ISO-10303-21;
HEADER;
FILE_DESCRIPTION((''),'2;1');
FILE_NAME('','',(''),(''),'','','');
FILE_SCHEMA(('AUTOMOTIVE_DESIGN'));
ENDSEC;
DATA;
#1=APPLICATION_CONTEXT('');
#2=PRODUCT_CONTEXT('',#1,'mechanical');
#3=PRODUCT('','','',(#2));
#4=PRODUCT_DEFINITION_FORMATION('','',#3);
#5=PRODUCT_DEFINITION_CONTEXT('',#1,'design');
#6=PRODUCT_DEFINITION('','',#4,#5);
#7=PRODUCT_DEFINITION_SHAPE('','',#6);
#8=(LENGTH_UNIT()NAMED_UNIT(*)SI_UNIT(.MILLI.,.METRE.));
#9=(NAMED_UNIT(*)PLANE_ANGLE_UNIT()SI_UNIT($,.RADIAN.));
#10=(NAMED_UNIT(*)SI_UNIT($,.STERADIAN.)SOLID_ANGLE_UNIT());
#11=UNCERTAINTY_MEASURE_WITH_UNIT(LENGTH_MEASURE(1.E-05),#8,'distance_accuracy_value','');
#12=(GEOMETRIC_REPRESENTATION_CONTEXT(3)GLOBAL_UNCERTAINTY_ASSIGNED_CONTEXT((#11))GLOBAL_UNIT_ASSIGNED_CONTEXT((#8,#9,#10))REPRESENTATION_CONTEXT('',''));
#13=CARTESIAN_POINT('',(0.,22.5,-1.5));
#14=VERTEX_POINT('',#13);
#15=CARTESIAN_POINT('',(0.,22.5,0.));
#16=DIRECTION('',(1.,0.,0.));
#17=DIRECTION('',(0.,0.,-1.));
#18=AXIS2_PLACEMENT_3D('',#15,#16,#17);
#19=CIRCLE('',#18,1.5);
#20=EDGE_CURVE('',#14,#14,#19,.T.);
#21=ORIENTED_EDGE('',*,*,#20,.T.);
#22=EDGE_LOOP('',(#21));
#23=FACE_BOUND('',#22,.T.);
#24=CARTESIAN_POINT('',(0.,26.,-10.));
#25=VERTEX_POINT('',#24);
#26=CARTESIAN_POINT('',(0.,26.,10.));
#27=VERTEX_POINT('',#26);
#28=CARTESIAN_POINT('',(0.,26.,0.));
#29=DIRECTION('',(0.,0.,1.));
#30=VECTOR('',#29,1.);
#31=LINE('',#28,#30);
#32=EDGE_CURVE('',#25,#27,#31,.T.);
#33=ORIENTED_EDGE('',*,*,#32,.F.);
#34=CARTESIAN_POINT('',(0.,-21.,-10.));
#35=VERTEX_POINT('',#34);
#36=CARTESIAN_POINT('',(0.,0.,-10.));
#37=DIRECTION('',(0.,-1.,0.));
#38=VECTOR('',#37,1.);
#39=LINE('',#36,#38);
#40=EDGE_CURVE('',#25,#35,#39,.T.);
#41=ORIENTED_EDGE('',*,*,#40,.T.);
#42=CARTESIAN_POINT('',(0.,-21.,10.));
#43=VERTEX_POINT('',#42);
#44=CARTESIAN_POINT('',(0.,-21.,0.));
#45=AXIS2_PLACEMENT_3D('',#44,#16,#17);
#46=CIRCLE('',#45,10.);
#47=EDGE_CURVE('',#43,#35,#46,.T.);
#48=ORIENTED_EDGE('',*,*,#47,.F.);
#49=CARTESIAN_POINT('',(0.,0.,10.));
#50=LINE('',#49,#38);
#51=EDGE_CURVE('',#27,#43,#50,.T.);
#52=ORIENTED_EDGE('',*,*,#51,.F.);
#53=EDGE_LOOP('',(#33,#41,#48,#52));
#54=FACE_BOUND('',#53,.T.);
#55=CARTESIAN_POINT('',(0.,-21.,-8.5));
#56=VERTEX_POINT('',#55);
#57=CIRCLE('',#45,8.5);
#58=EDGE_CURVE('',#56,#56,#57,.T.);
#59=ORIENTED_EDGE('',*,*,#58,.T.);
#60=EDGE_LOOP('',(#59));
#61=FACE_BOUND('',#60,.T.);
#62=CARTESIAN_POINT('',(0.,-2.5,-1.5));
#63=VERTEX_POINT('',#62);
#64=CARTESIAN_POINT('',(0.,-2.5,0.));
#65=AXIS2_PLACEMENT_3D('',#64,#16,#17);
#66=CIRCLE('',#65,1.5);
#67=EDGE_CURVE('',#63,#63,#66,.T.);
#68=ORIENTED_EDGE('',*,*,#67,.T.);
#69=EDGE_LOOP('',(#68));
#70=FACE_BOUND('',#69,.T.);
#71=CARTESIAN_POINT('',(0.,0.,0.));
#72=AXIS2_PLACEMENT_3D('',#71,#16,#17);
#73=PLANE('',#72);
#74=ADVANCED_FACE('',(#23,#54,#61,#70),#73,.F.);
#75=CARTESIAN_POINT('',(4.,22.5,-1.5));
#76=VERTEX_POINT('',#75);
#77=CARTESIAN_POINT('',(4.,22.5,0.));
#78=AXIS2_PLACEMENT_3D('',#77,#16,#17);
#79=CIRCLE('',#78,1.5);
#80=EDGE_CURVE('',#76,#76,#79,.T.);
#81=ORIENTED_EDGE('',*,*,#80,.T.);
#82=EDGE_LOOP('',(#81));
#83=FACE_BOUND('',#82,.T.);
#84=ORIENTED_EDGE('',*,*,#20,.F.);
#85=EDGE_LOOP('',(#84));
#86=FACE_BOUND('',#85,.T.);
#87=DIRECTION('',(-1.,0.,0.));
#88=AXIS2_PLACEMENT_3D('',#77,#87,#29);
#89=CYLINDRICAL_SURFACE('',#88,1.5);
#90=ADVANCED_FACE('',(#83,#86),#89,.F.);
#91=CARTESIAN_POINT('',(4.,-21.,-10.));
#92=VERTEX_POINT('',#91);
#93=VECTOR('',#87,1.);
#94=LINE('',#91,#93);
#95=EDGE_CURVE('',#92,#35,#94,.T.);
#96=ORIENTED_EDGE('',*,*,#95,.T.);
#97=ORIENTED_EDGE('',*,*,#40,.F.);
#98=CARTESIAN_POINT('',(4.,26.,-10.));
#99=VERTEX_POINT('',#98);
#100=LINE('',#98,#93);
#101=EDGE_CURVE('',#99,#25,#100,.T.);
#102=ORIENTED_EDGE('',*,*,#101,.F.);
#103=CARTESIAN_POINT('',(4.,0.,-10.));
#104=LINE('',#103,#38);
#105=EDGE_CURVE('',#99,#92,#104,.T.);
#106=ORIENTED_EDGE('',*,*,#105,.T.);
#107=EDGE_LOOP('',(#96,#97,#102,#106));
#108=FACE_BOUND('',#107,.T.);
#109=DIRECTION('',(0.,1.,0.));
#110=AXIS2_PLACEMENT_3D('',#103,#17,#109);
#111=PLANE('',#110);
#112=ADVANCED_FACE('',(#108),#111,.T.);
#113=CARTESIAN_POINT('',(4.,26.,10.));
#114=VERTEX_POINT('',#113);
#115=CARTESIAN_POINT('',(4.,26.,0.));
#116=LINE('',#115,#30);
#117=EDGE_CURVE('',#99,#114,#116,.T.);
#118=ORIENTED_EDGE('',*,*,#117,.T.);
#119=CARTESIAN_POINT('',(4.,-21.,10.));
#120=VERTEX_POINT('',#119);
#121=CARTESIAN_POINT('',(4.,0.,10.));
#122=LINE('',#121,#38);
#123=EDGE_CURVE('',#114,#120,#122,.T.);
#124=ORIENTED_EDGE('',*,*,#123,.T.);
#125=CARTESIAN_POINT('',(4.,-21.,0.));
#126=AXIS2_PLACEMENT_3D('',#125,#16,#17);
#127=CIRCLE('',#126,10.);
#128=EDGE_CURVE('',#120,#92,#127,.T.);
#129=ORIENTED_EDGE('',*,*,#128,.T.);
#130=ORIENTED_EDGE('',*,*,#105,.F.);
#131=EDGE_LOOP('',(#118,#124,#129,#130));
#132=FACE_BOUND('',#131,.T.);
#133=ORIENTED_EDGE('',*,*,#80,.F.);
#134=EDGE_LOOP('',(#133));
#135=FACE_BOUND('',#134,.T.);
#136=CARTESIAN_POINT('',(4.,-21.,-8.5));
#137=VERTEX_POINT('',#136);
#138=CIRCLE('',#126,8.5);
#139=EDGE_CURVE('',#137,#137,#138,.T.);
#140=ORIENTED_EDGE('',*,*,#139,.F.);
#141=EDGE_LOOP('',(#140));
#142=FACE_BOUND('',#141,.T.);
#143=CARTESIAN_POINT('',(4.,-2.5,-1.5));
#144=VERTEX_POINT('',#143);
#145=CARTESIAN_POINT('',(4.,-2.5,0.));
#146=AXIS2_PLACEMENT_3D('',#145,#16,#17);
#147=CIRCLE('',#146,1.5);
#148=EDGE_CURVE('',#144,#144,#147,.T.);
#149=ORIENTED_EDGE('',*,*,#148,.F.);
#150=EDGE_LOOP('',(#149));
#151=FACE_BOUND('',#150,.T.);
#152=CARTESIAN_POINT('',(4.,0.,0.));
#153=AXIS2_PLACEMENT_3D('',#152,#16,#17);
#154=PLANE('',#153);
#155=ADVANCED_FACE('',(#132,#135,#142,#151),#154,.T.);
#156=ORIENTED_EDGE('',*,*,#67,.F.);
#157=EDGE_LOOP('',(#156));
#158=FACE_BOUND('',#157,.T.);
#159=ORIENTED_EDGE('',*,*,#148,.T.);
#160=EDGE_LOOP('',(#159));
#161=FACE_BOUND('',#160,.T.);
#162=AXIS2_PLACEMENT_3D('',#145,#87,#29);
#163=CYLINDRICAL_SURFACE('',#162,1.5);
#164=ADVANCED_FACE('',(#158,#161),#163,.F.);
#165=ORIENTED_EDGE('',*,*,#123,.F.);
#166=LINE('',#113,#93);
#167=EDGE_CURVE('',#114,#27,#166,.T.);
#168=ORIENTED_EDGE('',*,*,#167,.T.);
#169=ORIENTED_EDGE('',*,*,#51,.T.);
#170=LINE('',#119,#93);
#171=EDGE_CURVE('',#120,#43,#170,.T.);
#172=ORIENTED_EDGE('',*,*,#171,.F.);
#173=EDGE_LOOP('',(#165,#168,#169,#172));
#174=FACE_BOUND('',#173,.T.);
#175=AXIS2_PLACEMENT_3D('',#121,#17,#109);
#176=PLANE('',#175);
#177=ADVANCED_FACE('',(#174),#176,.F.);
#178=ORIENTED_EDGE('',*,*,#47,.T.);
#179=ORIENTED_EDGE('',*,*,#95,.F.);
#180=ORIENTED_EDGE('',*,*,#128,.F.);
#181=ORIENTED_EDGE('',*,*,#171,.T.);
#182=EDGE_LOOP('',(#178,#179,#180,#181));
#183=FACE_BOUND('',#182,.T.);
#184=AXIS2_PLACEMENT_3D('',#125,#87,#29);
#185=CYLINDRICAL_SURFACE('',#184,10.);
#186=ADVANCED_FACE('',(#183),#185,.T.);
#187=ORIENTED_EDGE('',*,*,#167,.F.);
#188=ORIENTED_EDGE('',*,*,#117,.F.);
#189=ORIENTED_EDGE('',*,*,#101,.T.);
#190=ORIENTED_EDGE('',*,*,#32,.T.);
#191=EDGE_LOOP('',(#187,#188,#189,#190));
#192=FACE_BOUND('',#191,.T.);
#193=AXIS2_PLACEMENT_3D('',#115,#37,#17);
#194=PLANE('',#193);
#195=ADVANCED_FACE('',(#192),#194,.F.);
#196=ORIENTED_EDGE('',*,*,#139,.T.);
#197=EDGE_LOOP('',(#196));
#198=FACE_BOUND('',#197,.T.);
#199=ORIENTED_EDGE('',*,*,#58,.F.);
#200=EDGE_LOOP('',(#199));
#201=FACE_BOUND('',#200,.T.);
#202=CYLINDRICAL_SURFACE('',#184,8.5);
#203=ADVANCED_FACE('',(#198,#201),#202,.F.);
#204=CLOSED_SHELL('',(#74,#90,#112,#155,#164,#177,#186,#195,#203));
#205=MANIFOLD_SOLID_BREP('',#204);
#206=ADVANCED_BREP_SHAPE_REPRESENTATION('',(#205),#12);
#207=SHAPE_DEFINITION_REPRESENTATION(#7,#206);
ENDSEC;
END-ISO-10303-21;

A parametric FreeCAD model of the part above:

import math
import FreeCAD as App
import Part
import Sketcher
Q = App.Units.Quantity

doc = App.newDocument("Part")
params = doc.addObject("Spreadsheet::Sheet", "Params")
for row, (alias, value) in enumerate([
    ("sketch1_diameter", "17 mm"),
    ("sketch1_diameter2", "3 mm"),
    ("sketch1_radius", "10 mm"),
    ("sketch1_width", "47 mm"),
    ("pad1_length", "4 mm"),
], start=1):
    params.set(f"A{row}", alias)
    params.set(f"B{row}", "=" + value)
    params.setAlias(f"B{row}", alias)

body = doc.addObject("PartDesign::Body", "Body")

# Sketch on YZ plane
sketch1 = body.newObject("Sketcher::SketchObject", "Sketch")
sketch1.AttachmentSupport = (doc.getObject("YZ_Plane"), [""])
sketch1.MapMode = "FlatFace"
sketch1.addGeometry([
    Part.LineSegment(App.Vector(26, 10, 0), App.Vector(-21, 10, 0)),  # 0
    Part.ArcOfCircle(Part.Circle(App.Vector(-21, 0, 0), App.Vector(0, 0, 1), 10), math.radians(90), math.radians(270)),  # 1
    Part.LineSegment(App.Vector(-21, -10, 0), App.Vector(26, -10, 0)),  # 2
    Part.LineSegment(App.Vector(26, -10, 0), App.Vector(26, 10, 0)),  # 3
    Part.Circle(App.Vector(-21, 0, 0), App.Vector(0, 0, 1), 8.5),  # 4
    Part.Circle(App.Vector(-2.5, 0, 0), App.Vector(0, 0, 1), 1.5),  # 5
    Part.Circle(App.Vector(22.5, 0, 0), App.Vector(0, 0, 1), 1.5),  # 6
], False)
sketch1.addConstraint([
    Sketcher.Constraint("Tangent", 0, 2, 1, 1),
    Sketcher.Constraint("Tangent", 1, 2, 2, 1),
    Sketcher.Constraint("Coincident", 2, 2, 3, 1),
    Sketcher.Constraint("Coincident", 3, 2, 0, 1),
    Sketcher.Constraint("Horizontal", 0),
    Sketcher.Constraint("Horizontal", 2),
    Sketcher.Constraint("Vertical", 3),
    Sketcher.Constraint("Coincident", 4, 3, 1, 3),
    Sketcher.Constraint("Equal", 5, 6),
    Sketcher.Constraint("PointOnObject", 1, 3, -1),
    Sketcher.Constraint("PointOnObject", 5, 3, -1),
    Sketcher.Constraint("PointOnObject", 6, 3, -1),
    Sketcher.Constraint("Diameter", 4, Q("17 mm")),
    Sketcher.Constraint("Diameter", 5, Q("3 mm")),
    Sketcher.Constraint("Radius", 1, Q("10 mm")),
    Sketcher.Constraint("DistanceX", 0, 2, 0, 1, Q("47 mm")),
    Sketcher.Constraint("DistanceX", 1, 3, -1, 1, Q("21 mm")),
    Sketcher.Constraint("DistanceX", 5, 3, 6, 3, Q("25 mm")),
    Sketcher.Constraint("DistanceX", 5, 3, -1, 1, Q("2.5 mm")),
])
sketch1.setExpression("Constraints[12]", "Params.sketch1_diameter")
sketch1.setExpression("Constraints[13]", "Params.sketch1_diameter2")
sketch1.setExpression("Constraints[14]", "Params.sketch1_radius")
sketch1.setExpression("Constraints[15]", "Params.sketch1_width")
pad1 = body.newObject("PartDesign::Pad", "Pad")
pad1.Profile = sketch1
pad1.setExpression("Length", "Params.pad1_length")

doc.recompute()
